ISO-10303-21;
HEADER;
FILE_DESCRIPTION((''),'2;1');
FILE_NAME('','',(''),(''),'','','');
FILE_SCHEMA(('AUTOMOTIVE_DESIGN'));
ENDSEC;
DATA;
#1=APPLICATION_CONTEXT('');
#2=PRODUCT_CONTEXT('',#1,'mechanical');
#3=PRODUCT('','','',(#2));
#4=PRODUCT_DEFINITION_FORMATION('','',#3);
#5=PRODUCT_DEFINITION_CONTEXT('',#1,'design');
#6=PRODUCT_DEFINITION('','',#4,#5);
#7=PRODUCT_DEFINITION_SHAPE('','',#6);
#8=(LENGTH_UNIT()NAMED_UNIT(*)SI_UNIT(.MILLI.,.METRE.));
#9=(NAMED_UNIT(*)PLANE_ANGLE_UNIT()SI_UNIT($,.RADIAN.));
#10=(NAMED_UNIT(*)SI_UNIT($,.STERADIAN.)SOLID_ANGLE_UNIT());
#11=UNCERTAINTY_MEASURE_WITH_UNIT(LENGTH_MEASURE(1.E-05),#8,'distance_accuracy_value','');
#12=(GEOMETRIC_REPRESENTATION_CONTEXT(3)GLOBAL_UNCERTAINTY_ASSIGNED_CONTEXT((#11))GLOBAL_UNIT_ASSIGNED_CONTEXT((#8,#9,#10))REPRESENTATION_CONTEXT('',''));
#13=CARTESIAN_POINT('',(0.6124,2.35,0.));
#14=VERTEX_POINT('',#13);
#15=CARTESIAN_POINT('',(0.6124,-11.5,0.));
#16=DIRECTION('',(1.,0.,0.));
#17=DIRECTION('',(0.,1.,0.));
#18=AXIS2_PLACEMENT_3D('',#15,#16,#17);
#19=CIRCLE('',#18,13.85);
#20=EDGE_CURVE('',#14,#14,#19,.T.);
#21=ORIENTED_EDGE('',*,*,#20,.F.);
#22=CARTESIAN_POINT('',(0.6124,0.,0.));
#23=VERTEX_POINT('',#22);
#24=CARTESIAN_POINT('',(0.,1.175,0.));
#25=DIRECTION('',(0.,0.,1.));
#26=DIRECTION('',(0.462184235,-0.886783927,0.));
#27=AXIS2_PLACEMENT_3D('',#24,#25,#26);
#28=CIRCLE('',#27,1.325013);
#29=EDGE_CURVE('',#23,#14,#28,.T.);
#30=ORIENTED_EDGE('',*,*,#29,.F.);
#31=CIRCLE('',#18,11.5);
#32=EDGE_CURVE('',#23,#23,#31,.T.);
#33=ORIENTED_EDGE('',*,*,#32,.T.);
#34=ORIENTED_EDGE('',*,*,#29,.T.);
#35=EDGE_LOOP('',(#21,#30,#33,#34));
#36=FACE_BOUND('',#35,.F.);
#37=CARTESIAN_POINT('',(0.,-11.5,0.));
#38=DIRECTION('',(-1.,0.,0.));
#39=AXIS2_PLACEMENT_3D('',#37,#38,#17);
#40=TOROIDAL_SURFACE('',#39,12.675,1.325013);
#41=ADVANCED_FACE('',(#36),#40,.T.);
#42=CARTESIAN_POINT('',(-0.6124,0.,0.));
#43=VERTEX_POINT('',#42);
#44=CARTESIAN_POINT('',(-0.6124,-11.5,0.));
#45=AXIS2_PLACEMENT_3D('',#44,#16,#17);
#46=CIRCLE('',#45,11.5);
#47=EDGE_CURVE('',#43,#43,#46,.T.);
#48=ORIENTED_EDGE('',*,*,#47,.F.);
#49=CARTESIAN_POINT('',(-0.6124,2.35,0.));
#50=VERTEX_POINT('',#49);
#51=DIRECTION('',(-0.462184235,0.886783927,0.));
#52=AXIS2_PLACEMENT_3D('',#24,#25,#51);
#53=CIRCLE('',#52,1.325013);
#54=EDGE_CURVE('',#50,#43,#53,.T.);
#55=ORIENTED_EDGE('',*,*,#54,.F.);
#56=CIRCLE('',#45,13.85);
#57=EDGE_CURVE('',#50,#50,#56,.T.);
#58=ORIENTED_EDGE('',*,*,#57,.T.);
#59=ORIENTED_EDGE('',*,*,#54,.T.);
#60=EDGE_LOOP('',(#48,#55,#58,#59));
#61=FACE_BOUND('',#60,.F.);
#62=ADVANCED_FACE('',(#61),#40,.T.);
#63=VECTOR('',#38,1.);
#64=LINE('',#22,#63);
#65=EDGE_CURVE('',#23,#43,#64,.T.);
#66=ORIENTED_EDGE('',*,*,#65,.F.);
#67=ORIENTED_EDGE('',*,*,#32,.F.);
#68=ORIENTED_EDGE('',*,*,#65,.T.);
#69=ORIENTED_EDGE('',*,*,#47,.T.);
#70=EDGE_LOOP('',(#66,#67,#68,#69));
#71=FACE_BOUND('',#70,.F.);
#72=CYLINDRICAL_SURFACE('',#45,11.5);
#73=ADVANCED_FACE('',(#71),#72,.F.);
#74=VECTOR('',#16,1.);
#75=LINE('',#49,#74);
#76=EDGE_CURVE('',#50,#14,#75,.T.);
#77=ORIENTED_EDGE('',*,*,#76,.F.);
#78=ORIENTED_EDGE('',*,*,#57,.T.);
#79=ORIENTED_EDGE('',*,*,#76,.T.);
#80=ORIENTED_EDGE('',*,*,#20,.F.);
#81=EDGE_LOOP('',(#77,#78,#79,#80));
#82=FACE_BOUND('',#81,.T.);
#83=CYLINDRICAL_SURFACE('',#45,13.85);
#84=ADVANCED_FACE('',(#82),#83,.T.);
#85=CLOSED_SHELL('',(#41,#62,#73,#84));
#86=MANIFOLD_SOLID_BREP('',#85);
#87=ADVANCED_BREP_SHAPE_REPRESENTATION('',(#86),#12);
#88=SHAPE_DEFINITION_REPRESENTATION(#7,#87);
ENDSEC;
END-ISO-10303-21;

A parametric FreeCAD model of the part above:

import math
import FreeCAD as App
import Part
import Sketcher

V = App.Vector
Q = App.Units.Quantity

doc = App.newDocument("Part")
body = doc.addObject("PartDesign::Body", "Body")

# Sketch on XY plane
sketch1 = body.newObject("Sketcher::SketchObject", "Sketch")
sketch1.AttachmentSupport = (doc.getObject("XY_Plane"), [""])
sketch1.MapMode = "FlatFace"
sketch1.addGeometry(Part.ArcOfCircle(Part.Circle(V(0, 1.2, 0), V(0, 0, 1), 1.3), math.radians(118), math.radians(242)), False)
sketch1.addGeometry(Part.LineSegment(V(-0.6, 0, 0), V(0.6, 0, 0)), False)
sketch1.addGeometry(Part.ArcOfCircle(Part.Circle(V(0, 1.2, 0), V(0, 0, 1), 1.3), math.radians(-62), math.radians(62)), False)
sketch1.addGeometry(Part.LineSegment(V(0.6, 2.4, 0), V(-0.6, 2.4, 0)), False)
sketch1.addGeometry(Part.LineSegment(V(-0.6, -11.5, 0), V(0.6, -11.5, 0)), True)  # axis
sketch1.addConstraint(Sketcher.Constraint("Coincident", 0, 2, 1, 1))
sketch1.addConstraint(Sketcher.Constraint("Coincident", 1, 2, 2, 1))
sketch1.addConstraint(Sketcher.Constraint("Coincident", 2, 2, 3, 1))
sketch1.addConstraint(Sketcher.Constraint("Coincident", 3, 2, 0, 1))
sketch1.addConstraint(Sketcher.Constraint("Horizontal", 1))
sketch1.addConstraint(Sketcher.Constraint("Horizontal", 3))
sketch1.addConstraint(Sketcher.Constraint("Horizontal", 4))
sketch1.addConstraint(Sketcher.Constraint("Coincident", 2, 3, 0, 3))
sketch1.addConstraint(Sketcher.Constraint("Equal", 0, 2))
sketch1.addConstraint(Sketcher.Constraint("Symmetric", 0, 2, 1, 2, -1, 1))
sketch1.addConstraint(Sketcher.Constraint("Vertical", 1, 2, 2, 2))
sketch1.addConstraint(Sketcher.Constraint("Vertical", 3, 2, 4, 1))
sketch1.addConstraint(Sketcher.Constraint("Vertical", 2, 2, 4, 2))
sketch1.addConstraint(Sketcher.Constraint("Radius", 0, Q("1.325 mm")))
sketch1.addConstraint(Sketcher.Constraint("DistanceY", -1, 1, 2, 2, Q("2.35 mm")))
sketch1.addConstraint(Sketcher.Constraint("DistanceY", 4, 1, -1, 1, Q("11.5 mm")))
revolution = body.newObject("PartDesign::Revolution", "Revolution")
revolution.Profile = sketch1
revolution.ReferenceAxis = (sketch1, ["Axis0"])
revolution.Angle = 360

doc.recompute()
